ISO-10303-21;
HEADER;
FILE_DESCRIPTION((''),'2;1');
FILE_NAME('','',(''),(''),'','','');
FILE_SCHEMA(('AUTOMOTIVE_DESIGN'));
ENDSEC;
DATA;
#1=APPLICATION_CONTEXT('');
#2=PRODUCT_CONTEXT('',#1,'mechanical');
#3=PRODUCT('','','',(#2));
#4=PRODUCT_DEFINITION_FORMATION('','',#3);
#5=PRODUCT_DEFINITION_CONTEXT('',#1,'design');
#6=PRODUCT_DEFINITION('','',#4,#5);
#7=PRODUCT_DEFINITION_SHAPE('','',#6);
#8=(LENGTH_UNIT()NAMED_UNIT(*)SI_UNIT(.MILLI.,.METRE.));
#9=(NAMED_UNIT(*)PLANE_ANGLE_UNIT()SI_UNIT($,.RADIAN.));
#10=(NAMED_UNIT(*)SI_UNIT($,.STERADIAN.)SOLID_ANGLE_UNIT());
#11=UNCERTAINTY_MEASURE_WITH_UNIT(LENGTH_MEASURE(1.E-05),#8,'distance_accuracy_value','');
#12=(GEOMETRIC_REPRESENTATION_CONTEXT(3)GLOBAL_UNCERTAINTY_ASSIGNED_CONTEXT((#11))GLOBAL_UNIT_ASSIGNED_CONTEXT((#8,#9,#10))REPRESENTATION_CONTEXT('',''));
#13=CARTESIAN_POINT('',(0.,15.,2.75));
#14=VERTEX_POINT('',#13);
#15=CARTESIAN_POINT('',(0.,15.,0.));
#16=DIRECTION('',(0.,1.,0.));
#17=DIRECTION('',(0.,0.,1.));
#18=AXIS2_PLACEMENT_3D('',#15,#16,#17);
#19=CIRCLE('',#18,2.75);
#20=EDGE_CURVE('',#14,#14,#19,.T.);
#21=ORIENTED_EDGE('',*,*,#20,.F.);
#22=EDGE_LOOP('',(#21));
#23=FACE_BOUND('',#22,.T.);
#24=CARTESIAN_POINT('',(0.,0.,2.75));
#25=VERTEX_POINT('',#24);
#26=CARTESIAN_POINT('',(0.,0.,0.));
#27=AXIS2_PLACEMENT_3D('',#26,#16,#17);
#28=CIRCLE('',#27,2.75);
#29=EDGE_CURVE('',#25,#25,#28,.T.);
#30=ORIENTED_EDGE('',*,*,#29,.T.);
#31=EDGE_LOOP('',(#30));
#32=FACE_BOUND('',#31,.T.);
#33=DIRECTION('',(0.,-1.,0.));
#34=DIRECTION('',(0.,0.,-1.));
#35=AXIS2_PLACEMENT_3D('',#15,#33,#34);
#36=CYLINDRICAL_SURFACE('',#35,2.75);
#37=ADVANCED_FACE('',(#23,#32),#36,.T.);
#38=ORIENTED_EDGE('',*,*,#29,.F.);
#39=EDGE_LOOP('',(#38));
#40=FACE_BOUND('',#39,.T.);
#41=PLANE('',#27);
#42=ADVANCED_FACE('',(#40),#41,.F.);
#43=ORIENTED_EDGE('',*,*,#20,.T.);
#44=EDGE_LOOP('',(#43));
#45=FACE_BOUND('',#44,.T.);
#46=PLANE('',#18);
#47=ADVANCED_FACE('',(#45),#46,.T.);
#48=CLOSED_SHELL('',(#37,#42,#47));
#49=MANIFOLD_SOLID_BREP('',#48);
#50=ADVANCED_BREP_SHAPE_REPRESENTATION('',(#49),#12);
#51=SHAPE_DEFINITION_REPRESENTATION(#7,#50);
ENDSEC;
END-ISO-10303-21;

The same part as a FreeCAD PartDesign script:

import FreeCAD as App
import Part
import Sketcher
from FreeCAD import Vector
Q = App.Units.Quantity

doc = App.newDocument("Part")
params = doc.addObject("Spreadsheet::Sheet", "Params")
for row, (alias, value) in enumerate([
    ("sketch1_diameter", "5.5 mm"),
    ("pad1_length", "15 mm"),
], start=1):
    params.set(f"A{row}", alias)
    params.set(f"B{row}", "=" + value)
    params.setAlias(f"B{row}", alias)

body = doc.addObject("PartDesign::Body", "Body")

# Sketch on XZ plane
sketch1 = body.newObject("Sketcher::SketchObject", "Sketch")
sketch1.AttachmentSupport = (doc.getObject("XZ_Plane"), [""])
sketch1.MapMode = "FlatFace"
sketch1.addGeometry(Part.Circle(Vector(0, 0, 0), Vector(0, 0, 1), 2.8), False)
sketch1.addConstraint([
    Sketcher.Constraint("Coincident", 0, 3, -1, 1),
    Sketcher.Constraint("Diameter", 0, Q("5.5 mm")),
])
sketch1.setExpression("Constraints[1]", "Params.sketch1_diameter")
pad1 = body.newObject("PartDesign::Pad", "Pad")
pad1.Profile = sketch1
pad1.setExpression("Length", "Params.pad1_length")
pad1.Reversed = True

doc.recompute()
